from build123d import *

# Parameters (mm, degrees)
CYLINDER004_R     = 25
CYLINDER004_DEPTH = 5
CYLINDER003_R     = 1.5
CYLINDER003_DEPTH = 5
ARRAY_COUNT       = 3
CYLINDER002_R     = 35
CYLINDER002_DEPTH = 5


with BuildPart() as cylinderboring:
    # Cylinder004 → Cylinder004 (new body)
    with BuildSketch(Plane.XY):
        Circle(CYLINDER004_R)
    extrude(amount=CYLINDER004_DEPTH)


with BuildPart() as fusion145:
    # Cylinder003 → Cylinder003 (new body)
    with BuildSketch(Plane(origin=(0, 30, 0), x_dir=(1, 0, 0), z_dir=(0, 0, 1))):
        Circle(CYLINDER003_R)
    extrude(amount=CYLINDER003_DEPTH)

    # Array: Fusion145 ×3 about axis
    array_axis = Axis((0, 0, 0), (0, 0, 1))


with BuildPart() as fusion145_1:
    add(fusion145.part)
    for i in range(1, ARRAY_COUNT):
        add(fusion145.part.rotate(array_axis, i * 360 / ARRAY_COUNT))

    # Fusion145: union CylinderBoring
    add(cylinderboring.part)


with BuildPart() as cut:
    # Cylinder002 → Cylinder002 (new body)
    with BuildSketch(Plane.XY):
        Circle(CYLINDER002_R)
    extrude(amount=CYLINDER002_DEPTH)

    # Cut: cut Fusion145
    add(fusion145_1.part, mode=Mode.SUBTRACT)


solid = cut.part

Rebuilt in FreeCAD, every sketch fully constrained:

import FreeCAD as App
import Part
import Sketcher

doc = App.newDocument("Part")
body = doc.addObject("PartDesign::Body", "Body")

# Sketch on XY plane
sketch1 = doc.addObject("Sketcher::SketchObject", "Sketch")
body.addObject(sketch1)
sketch1.AttachmentSupport = (doc.XY_Plane, [""])
sketch1.MapMode = "FlatFace"
sketch1.addGeometry(Part.Circle(App.Vector(0, 0, 0), App.Vector(0, 0, 1), 25), False)
sketch1.addConstraint(Sketcher.Constraint("Coincident", 0, 3, -1, 1))
sketch1.addConstraint(Sketcher.Constraint("Diameter", 0, 50.0))
pad1 = doc.addObject("PartDesign::Pad", "Pad")
body.addObject(pad1)
pad1.Profile = sketch1
pad1.Length = 5
body2 = doc.addObject("PartDesign::Body", "Body001")

# Sketch on XY plane
sketch2 = doc.addObject("Sketcher::SketchObject", "Sketch001")
body2.addObject(sketch2)
sketch2.AttachmentSupport = (doc.getObject("XY_Plane001"), [""])
sketch2.MapMode = "FlatFace"
sketch2.addGeometry(Part.Circle(App.Vector(0, 30, 0), App.Vector(0, 0, 1), 1.5), False)
sketch2.addConstraint(Sketcher.Constraint("PointOnObject", 0, 3, -2))
sketch2.addConstraint(Sketcher.Constraint("Diameter", 0, 3.0))
sketch2.addConstraint(Sketcher.Constraint("DistanceY", -1, 1, 0, 3, 30.0))
pad2 = doc.addObject("PartDesign::Pad", "Pad001")
body2.addObject(pad2)
pad2.Profile = sketch2
pad2.Length = 5
body3 = doc.addObject("PartDesign::Body", "Body002")
body3.AllowCompound = True
doc.recompute()

body3.BaseFeature = body2
doc.recompute()

body4 = doc.addObject("PartDesign::Body", "Body003")
body4.BaseFeature = body2
body4.Placement = App.Placement(App.Vector(0, 0, 0), App.Rotation(App.Vector(0, 0, 1), 120))
boolean = doc.addObject("PartDesign::Boolean", "Boolean")
body3.addObject(boolean)
boolean.Type = "Fuse"
boolean.addObjects([body4])
doc.recompute()

body2.Placement = App.Placement(App.Vector(0, 0, 0), App.Rotation(App.Vector(0, 0, 1), 240))
boolean2 = doc.addObject("PartDesign::Boolean", "Boolean001")
body3.addObject(boolean2)
boolean2.Type = "Fuse"
boolean2.addObjects([body2])
doc.recompute()

boolean3 = doc.addObject("PartDesign::Boolean", "Boolean002")
body3.addObject(boolean3)
boolean3.Type = "Fuse"
boolean3.addObjects([body])
body5 = doc.addObject("PartDesign::Body", "Body004")

# Sketch on XY plane
sketch3 = doc.addObject("Sketcher::SketchObject", "Sketch002")
body5.addObject(sketch3)
sketch3.AttachmentSupport = (doc.getObject("XY_Plane004"), [""])
sketch3.MapMode = "FlatFace"
sketch3.addGeometry(Part.Circle(App.Vector(0, 0, 0), App.Vector(0, 0, 1), 35), False)
sketch3.addConstraint(Sketcher.Constraint("Coincident", 0, 3, -1, 1))
sketch3.addConstraint(Sketcher.Constraint("Diameter", 0, 70.0))
pad3 = doc.addObject("PartDesign::Pad", "Pad002")
body5.addObject(pad3)
pad3.Profile = sketch3
pad3.Length = 5
doc.recompute()

boolean4 = doc.addObject("PartDesign::Boolean", "Boolean003")
body5.addObject(boolean4)
boolean4.Type = "Cut"
boolean4.addObjects([body3])

doc.recompute()
